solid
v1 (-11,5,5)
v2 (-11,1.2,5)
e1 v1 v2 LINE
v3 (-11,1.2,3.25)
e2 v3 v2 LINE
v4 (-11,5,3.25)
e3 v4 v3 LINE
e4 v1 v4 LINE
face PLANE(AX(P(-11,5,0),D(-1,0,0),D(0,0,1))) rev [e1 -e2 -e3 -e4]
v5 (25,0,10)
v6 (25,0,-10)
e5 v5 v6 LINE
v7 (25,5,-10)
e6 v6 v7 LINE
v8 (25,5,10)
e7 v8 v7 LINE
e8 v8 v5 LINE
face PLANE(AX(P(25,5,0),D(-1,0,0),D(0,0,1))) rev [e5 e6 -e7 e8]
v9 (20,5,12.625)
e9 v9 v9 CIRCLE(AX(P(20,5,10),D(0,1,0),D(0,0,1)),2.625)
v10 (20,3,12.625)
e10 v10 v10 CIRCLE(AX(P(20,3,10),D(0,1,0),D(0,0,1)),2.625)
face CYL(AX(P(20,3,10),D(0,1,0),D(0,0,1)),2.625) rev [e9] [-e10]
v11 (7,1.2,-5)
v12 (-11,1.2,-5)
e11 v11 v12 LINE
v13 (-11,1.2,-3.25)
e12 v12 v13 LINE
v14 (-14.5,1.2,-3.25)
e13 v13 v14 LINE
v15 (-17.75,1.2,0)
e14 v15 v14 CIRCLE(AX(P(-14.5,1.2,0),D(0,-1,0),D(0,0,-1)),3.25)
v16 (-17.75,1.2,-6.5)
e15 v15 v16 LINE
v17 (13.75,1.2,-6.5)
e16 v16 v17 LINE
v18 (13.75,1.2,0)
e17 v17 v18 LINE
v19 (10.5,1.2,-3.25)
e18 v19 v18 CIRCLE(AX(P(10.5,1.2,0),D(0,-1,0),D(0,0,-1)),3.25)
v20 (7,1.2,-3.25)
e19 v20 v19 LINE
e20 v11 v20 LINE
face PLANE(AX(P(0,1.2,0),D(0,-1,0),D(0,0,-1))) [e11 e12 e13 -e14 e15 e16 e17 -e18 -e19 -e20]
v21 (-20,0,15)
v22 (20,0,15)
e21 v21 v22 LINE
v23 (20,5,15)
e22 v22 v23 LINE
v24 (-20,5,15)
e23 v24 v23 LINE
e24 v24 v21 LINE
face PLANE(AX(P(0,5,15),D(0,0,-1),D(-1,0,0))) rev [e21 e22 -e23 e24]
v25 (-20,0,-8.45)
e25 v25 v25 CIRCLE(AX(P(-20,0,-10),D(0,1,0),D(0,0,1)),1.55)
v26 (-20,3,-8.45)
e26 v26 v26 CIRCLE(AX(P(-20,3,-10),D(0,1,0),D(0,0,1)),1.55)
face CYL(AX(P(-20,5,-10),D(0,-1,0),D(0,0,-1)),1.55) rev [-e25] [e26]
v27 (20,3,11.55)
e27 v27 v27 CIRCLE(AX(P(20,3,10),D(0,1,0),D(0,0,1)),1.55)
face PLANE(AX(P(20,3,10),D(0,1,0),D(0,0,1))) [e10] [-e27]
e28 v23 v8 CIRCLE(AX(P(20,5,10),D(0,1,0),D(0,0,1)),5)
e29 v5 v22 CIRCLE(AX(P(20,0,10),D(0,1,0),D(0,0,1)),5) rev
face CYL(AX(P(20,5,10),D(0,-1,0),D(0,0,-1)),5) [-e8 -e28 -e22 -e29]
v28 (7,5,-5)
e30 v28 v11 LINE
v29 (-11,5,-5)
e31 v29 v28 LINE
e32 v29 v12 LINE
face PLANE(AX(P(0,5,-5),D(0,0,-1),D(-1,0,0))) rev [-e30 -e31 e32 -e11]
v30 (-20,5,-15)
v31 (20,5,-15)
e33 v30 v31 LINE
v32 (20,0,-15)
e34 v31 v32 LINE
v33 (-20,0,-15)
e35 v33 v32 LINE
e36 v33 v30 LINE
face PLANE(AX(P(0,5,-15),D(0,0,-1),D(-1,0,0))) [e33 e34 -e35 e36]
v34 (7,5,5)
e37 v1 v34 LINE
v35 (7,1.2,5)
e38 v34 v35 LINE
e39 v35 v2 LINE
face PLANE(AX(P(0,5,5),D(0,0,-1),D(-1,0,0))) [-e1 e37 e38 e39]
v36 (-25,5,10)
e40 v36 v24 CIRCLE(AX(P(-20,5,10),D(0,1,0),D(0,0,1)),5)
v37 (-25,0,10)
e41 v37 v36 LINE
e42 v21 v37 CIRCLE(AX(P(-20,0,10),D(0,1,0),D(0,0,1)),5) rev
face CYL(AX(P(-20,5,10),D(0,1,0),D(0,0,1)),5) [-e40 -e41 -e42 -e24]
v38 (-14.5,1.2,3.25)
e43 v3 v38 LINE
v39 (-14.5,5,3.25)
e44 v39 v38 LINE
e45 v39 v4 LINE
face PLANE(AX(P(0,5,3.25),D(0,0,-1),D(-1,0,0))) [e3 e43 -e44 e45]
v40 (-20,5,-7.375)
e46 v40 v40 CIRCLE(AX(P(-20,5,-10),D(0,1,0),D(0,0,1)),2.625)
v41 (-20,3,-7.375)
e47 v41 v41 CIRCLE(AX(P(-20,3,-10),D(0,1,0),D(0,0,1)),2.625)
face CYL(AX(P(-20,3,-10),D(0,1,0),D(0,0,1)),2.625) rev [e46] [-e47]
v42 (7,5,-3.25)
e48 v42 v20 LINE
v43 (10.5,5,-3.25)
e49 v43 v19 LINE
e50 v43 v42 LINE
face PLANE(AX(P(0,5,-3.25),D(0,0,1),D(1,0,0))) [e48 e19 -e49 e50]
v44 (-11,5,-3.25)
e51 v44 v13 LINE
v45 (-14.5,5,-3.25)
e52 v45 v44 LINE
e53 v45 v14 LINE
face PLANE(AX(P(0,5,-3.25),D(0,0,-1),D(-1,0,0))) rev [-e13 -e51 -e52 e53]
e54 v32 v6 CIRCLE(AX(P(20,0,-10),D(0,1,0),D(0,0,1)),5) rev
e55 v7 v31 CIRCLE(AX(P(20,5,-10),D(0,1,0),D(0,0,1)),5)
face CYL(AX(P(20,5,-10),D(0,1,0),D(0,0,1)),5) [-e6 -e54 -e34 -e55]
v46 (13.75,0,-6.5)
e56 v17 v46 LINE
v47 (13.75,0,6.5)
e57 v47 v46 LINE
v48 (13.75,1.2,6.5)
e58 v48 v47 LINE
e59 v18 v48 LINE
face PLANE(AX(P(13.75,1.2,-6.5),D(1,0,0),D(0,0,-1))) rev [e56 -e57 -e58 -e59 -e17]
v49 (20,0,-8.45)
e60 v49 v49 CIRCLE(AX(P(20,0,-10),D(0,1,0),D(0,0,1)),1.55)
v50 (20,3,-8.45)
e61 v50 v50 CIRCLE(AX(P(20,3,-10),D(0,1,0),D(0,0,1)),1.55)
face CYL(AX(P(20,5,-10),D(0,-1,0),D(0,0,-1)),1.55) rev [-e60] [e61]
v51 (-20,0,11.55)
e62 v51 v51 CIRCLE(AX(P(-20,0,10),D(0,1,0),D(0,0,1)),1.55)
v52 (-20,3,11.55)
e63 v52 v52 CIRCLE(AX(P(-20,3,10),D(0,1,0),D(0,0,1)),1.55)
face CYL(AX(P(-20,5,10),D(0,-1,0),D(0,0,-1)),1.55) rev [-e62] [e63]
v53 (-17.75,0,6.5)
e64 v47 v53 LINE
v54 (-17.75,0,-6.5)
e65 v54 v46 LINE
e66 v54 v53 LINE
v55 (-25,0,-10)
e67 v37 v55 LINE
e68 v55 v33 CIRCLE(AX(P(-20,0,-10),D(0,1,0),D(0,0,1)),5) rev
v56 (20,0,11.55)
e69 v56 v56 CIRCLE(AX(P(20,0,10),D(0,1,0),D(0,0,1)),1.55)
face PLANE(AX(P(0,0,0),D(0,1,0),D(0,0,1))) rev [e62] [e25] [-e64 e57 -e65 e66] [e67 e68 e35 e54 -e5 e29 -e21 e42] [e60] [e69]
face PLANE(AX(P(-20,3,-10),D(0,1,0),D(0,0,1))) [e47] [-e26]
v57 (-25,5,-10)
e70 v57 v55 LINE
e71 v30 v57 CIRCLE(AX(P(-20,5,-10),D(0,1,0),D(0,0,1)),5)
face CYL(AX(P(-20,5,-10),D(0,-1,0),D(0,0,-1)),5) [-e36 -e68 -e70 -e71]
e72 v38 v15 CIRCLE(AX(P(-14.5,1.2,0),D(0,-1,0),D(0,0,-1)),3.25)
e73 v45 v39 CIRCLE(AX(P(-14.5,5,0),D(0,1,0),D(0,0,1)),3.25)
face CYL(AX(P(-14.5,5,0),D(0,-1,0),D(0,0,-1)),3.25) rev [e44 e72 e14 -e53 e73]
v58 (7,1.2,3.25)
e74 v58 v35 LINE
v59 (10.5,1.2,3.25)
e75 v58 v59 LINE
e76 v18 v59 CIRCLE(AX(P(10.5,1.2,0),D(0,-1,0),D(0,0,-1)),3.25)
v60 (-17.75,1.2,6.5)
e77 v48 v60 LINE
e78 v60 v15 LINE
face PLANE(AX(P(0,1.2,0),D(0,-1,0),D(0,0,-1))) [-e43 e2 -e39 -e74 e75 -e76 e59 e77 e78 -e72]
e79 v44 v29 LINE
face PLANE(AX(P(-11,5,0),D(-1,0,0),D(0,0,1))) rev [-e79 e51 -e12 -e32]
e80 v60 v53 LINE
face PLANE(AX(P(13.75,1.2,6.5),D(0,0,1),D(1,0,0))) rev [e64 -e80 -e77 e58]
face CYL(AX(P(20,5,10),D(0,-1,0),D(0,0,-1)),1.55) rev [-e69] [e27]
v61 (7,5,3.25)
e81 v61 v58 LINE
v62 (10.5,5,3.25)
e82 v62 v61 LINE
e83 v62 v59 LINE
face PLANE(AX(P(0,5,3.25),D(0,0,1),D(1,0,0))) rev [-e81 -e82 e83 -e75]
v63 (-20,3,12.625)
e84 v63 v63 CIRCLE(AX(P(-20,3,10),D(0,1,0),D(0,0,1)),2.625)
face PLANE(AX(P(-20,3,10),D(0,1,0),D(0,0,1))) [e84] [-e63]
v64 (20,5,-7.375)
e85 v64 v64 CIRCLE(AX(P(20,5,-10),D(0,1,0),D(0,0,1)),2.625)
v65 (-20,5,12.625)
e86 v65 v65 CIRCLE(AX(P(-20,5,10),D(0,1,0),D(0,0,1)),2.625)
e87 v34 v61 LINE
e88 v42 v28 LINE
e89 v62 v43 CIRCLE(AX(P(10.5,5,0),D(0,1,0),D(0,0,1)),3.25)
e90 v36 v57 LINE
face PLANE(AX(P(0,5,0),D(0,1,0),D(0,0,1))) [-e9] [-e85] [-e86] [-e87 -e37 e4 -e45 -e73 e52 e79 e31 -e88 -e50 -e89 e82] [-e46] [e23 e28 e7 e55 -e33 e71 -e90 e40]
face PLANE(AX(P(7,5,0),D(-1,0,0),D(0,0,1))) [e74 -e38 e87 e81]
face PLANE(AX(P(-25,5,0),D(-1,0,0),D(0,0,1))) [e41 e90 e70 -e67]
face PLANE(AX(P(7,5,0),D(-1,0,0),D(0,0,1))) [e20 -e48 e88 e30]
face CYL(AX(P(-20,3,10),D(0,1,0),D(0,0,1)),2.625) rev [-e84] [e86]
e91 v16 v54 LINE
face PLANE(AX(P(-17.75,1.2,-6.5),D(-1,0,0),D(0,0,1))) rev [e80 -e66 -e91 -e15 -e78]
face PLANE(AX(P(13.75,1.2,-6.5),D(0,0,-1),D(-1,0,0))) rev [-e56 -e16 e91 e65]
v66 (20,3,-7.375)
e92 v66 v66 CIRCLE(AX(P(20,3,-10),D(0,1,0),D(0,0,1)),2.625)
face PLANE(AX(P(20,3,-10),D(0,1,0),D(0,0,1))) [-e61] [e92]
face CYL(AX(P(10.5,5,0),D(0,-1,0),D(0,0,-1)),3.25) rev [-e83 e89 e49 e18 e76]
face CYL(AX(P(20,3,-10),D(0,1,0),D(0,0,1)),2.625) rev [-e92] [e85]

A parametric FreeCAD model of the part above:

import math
import FreeCAD as App
import Part
import Sketcher
from FreeCAD import Vector


def edges_at(feature, points):
    """Names of the edges that pass closest to the given points."""
    edges = feature.Shape.Edges
    near = lambda p: min(range(len(edges)), key=lambda i: edges[i].distToShape(Part.Vertex(*p))[0])
    return sorted({f"Edge{near(p) + 1}" for p in points})


def add_polygon(sketch, points):
    """Adds a closed chain of lines whose ends are joined by coincident constraints."""
    first, n = sketch.GeometryCount, len(points)
    for a, b in zip(points, points[1:] + points[:1]):
        sketch.addGeometry(Part.LineSegment(App.Vector(*a, 0), App.Vector(*b, 0)), False)
    for i in range(n):
        sketch.addConstraint(Sketcher.Constraint("Coincident", first + i, 2, first + (i + 1) % n, 1))

doc = App.newDocument("Part")
body = doc.addObject("PartDesign::Body", "Body")

# Sketch on XZ plane
sketch1 = body.newObject("Sketcher::SketchObject", "Sketch")
sketch1.AttachmentSupport = (doc.getObject("XZ_Plane"), [""])
sketch1.MapMode = "FlatFace"
add_polygon(sketch1, [(-25, -15), (-25, 15), (25, 15), (25, -15)])  # lines 0-3
sketch1.addGeometry(Part.Circle(Vector(-20, 10, 0), Vector(0, 0, 1), 1.6), False)  # 4
sketch1.addGeometry(Part.Circle(Vector(20, 10, 0), Vector(0, 0, 1), 1.6), False)  # 5
sketch1.addGeometry(Part.LineSegment(Vector(7, 3.2, 0), Vector(7, 5, 0)), False)  # 6
sketch1.addGeometry(Part.LineSegment(Vector(7, 5, 0), Vector(-11, 5, 0)), False)  # 7
sketch1.addGeometry(Part.LineSegment(Vector(-11, 5, 0), Vector(-11, 3.2, 0)), False)  # 8
sketch1.addGeometry(Part.LineSegment(Vector(-11, 3.2, 0), Vector(-14.5, 3.2, 0)), False)  # 9
sketch1.addGeometry(Part.ArcOfCircle(Part.Circle(Vector(-14.5, 0, 0), Vector(0, 0, 1), 3.2), math.radians(90), math.radians(270)), False)  # 10
sketch1.addGeometry(Part.LineSegment(Vector(-14.5, -3.2, 0), Vector(-11, -3.2, 0)), False)  # 11
sketch1.addGeometry(Part.LineSegment(Vector(-11, -3.2, 0), Vector(-11, -5, 0)), False)  # 12
sketch1.addGeometry(Part.LineSegment(Vector(-11, -5, 0), Vector(7, -5, 0)), False)  # 13
sketch1.addGeometry(Part.LineSegment(Vector(7, -5, 0), Vector(7, -3.2, 0)), False)  # 14
sketch1.addGeometry(Part.LineSegment(Vector(7, -3.2, 0), Vector(10.5, -3.2, 0)), False)  # 15
sketch1.addGeometry(Part.ArcOfCircle(Part.Circle(Vector(10.5, 0, 0), Vector(0, 0, 1), 3.2), math.radians(-90), math.radians(0)), False)  # 16
sketch1.addGeometry(Part.ArcOfCircle(Part.Circle(Vector(10.5, 0, 0), Vector(0, 0, 1), 3.2), math.radians(0), math.radians(90)), False)  # 17
sketch1.addGeometry(Part.LineSegment(Vector(10.5, 3.2, 0), Vector(7, 3.2, 0)), False)  # 18
sketch1.addGeometry(Part.Circle(Vector(-20, -10, 0), Vector(0, 0, 1), 1.6), False)  # 19
sketch1.addGeometry(Part.Circle(Vector(20, -10, 0), Vector(0, 0, 1), 1.6), False)  # 20
sketch1.addConstraint(Sketcher.Constraint("Coincident", 6, 2, 7, 1))
sketch1.addConstraint(Sketcher.Constraint("Coincident", 7, 2, 8, 1))
sketch1.addConstraint(Sketcher.Constraint("Coincident", 8, 2, 9, 1))
sketch1.addConstraint(Sketcher.Constraint("Tangent", 9, 2, 10, 1))
sketch1.addConstraint(Sketcher.Constraint("Tangent", 10, 2, 11, 1))
sketch1.addConstraint(Sketcher.Constraint("Coincident", 11, 2, 12, 1))
sketch1.addConstraint(Sketcher.Constraint("Coincident", 12, 2, 13, 1))
sketch1.addConstraint(Sketcher.Constraint("Coincident", 13, 2, 14, 1))
sketch1.addConstraint(Sketcher.Constraint("Coincident", 14, 2, 15, 1))
sketch1.addConstraint(Sketcher.Constraint("Tangent", 15, 2, 16, 1))
sketch1.addConstraint(Sketcher.Constraint("Tangent", 16, 2, 17, 1))
sketch1.addConstraint(Sketcher.Constraint("Tangent", 17, 2, 18, 1))
sketch1.addConstraint(Sketcher.Constraint("Coincident", 18, 2, 6, 1))
sketch1.addConstraint(Sketcher.Constraint("Vertical", 0))
sketch1.addConstraint(Sketcher.Constraint("Horizontal", 1))
sketch1.addConstraint(Sketcher.Constraint("Vertical", 2))
sketch1.addConstraint(Sketcher.Constraint("Horizontal", 3))
sketch1.addConstraint(Sketcher.Constraint("Vertical", 6))
sketch1.addConstraint(Sketcher.Constraint("Horizontal", 7))
sketch1.addConstraint(Sketcher.Constraint("Vertical", 8))
sketch1.addConstraint(Sketcher.Constraint("Horizontal", 9))
sketch1.addConstraint(Sketcher.Constraint("Horizontal", 11))
sketch1.addConstraint(Sketcher.Constraint("Vertical", 12))
sketch1.addConstraint(Sketcher.Constraint("Horizontal", 13))
sketch1.addConstraint(Sketcher.Constraint("Vertical", 14))
sketch1.addConstraint(Sketcher.Constraint("Horizontal", 15))
sketch1.addConstraint(Sketcher.Constraint("Horizontal", 18))
sketch1.addConstraint(Sketcher.Constraint("Equal", 4, 5))
sketch1.addConstraint(Sketcher.Constraint("Equal", 10, 16))
sketch1.addConstraint(Sketcher.Constraint("Equal", 16, 17))
sketch1.addConstraint(Sketcher.Constraint("Equal", 5, 19))
sketch1.addConstraint(Sketcher.Constraint("Equal", 19, 20))
sketch1.addConstraint(Sketcher.Constraint("Symmetric", 5, 3, 19, 3, -1, 1))
sketch1.addConstraint(Sketcher.Constraint("Symmetric", 4, 3, 20, 3, -1, 1))
sketch1.addConstraint(Sketcher.Constraint("Symmetric", 0, 2, 2, 2, -1, 1))
sketch1.addConstraint(Sketcher.Constraint("Symmetric", 4, 3, 5, 3, -2))
sketch1.addConstraint(Sketcher.Constraint("Symmetric", 8, 2, 11, 2, -1))
sketch1.addConstraint(Sketcher.Constraint("Symmetric", 6, 2, 13, 2, -1))
sketch1.addConstraint(Sketcher.Constraint("PointOnObject", 16, 3, -1))
sketch1.addConstraint(Sketcher.Constraint("PointOnObject", 16, 2, -1))
sketch1.addConstraint(Sketcher.Constraint("Equal", 11, 15))
sketch1.addConstraint(Sketcher.Constraint("Diameter", 4, 3.1))
sketch1.addConstraint(Sketcher.Constraint("DistanceX", 1, 1, 1, 2, 50.0))
sketch1.addConstraint(Sketcher.Constraint("DistanceX", 7, 2, 7, 1, 18.0))
sketch1.addConstraint(Sketcher.Constraint("DistanceY", 0, 1, 0, 2, 30.0))
sketch1.addConstraint(Sketcher.Constraint("Radius", 10, 3.25))
sketch1.addConstraint(Sketcher.Constraint("DistanceX", 9, 2, 9, 1, 3.5))
sketch1.addConstraint(Sketcher.Constraint("DistanceX", 4, 3, -1, 1, 20.0))
sketch1.addConstraint(Sketcher.Constraint("DistanceY", -1, 1, 4, 3, 10.0))
sketch1.addConstraint(Sketcher.Constraint("DistanceX", -1, 1, 6, 2, 7.0))
sketch1.addConstraint(Sketcher.Constraint("DistanceY", -1, 1, 6, 2, 5.0))
pad1 = body.newObject("PartDesign::Pad", "Pad")
pad1.Profile = sketch1
pad1.Length = 5
pad1.Reversed = True

# Sketch on XZ plane
sketch2 = body.newObject("Sketcher::SketchObject", "Sketch001")
sketch2.AttachmentSupport = (doc.getObject("XZ_Plane"), [""])
sketch2.MapMode = "FlatFace"
sketch2.AttachmentOffset = App.Placement(Vector(0, 0, -5), App.Rotation())
sketch2.addGeometry(Part.Circle(Vector(-20, -10, 0), Vector(0, 0, 1), 2.6), False)
sketch2.addGeometry(Part.Circle(Vector(20, -10, 0), Vector(0, 0, 1), 2.6), False)
sketch2.addGeometry(Part.Circle(Vector(20, 10, 0), Vector(0, 0, 1), 2.6), False)
sketch2.addGeometry(Part.Circle(Vector(-20, 10, 0), Vector(0, 0, 1), 2.6), False)
sketch2.addConstraint(Sketcher.Constraint("Equal", 0, 1))
sketch2.addConstraint(Sketcher.Constraint("Equal", 1, 2))
sketch2.addConstraint(Sketcher.Constraint("Equal", 2, 3))
sketch2.addConstraint(Sketcher.Constraint("Symmetric", 0, 3, 2, 3, -1, 1))
sketch2.addConstraint(Sketcher.Constraint("Symmetric", 1, 3, 3, 3, -1, 1))
sketch2.addConstraint(Sketcher.Constraint("Symmetric", 0, 3, 1, 3, -2))
sketch2.addConstraint(Sketcher.Constraint("Diameter", 0, 5.25))
sketch2.addConstraint(Sketcher.Constraint("DistanceX", 0, 3, -1, 1, 20.0))
sketch2.addConstraint(Sketcher.Constraint("DistanceY", 0, 3, -1, 1, 10.0))
pocket1 = body.newObject("PartDesign::Pocket", "Pocket")
pocket1.Profile = sketch2
pocket1.Length = 2
pocket1.Reversed = True

# Sketch on XZ plane
sketch3 = body.newObject("Sketcher::SketchObject", "Sketch002")
sketch3.AttachmentSupport = (doc.getObject("XZ_Plane"), [""])
sketch3.MapMode = "FlatFace"
add_polygon(sketch3, [(-18, 6), (-18, -6), (14, -6), (14, 6)])  # lines 0-3
sketch3.addConstraint(Sketcher.Constraint("Vertical", 0))
sketch3.addConstraint(Sketcher.Constraint("Horizontal", 1))
sketch3.addConstraint(Sketcher.Constraint("Vertical", 2))
sketch3.addConstraint(Sketcher.Constraint("Horizontal", 3))
sketch3.addConstraint(Sketcher.Constraint("DistanceY", 0, 2, 0, 1, 13.0))
sketch3.addConstraint(Sketcher.Constraint("DistanceX", 1, 1, 1, 2, 31.5))
sketch3.addConstraint(Sketcher.Constraint("DistanceY", 0, 2, -1, 1, 6.5))
sketch3.addConstraint(Sketcher.Constraint("DistanceX", 0, 2, -1, 1, 17.75))
pocket2 = body.newObject("PartDesign::Pocket", "Pocket001")
pocket2.Profile = sketch3
pocket2.Length = 1.2
doc.recompute()

fillet = body.newObject("PartDesign::Fillet", "Fillet")
fillet.Base = (pocket2, edges_at(pocket2, [
    (-25, 2.5, 15),
    (-25, 2.5, -15),
    (25, 2.5, -15),
    (25, 2.5, 15),
]))
fillet.Radius = 5

doc.recompute()
